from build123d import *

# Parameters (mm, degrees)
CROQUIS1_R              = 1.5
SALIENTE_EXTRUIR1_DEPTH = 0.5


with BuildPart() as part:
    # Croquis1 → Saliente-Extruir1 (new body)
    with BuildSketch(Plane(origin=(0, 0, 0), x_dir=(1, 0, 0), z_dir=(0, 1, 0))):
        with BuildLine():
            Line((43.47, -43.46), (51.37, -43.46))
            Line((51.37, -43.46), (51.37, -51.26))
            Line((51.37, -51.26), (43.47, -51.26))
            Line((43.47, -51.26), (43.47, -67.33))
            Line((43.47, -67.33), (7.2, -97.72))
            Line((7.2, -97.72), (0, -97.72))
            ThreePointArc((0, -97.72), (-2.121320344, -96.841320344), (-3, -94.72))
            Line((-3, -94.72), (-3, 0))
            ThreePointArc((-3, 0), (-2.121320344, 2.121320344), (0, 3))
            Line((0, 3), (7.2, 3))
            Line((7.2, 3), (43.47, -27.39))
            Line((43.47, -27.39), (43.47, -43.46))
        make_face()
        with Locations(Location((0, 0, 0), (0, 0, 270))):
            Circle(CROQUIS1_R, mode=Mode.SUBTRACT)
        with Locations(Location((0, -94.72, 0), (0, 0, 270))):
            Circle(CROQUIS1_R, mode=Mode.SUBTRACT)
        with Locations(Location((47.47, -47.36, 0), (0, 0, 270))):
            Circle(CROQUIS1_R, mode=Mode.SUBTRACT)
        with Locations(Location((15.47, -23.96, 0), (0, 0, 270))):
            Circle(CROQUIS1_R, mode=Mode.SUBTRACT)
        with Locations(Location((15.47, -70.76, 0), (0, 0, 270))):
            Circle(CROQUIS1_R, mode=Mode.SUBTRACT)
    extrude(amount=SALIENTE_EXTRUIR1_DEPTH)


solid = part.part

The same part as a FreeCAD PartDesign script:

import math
import FreeCAD as App
import Part
import Sketcher
from FreeCAD import Vector
Q = App.Units.Quantity

doc = App.newDocument("Part")
body = doc.addObject("PartDesign::Body", "Body")

# Sketch on XZ plane
sketch1 = body.newObject("Sketcher::SketchObject", "Sketch")
sketch1.AttachmentSupport = (doc.getObject("XZ_Plane"), [""])
sketch1.MapMode = "FlatFace"
sketch1.addGeometry(Part.LineSegment(Vector(51.37, 43.46, 0), Vector(43.47, 43.46, 0)), False)
sketch1.addGeometry(Part.LineSegment(Vector(43.47, 43.46, 0), Vector(43.47, 27.39, 0)), False)
sketch1.addGeometry(Part.LineSegment(Vector(43.47, 27.39, 0), Vector(7.2, -3, 0)), False)
sketch1.addGeometry(Part.LineSegment(Vector(7.2, -3, 0), Vector(0, -3, 0)), False)
sketch1.addGeometry(Part.ArcOfCircle(Part.Circle(Vector(0, 0, 0), Vector(0, 0, 1), 3), math.radians(180), math.radians(270)), False)
sketch1.addGeometry(Part.LineSegment(Vector(-3, 0, 0), Vector(-3, 94.72, 0)), False)
sketch1.addGeometry(Part.ArcOfCircle(Part.Circle(Vector(0, 94.72, 0), Vector(0, 0, 1), 3), math.radians(90), math.radians(180)), False)
sketch1.addGeometry(Part.LineSegment(Vector(0, 97.72, 0), Vector(7.2, 97.72, 0)), False)
sketch1.addGeometry(Part.LineSegment(Vector(7.2, 97.72, 0), Vector(43.47, 67.33, 0)), False)
sketch1.addGeometry(Part.LineSegment(Vector(43.47, 67.33, 0), Vector(43.47, 51.26, 0)), False)
sketch1.addGeometry(Part.LineSegment(Vector(43.47, 51.26, 0), Vector(51.37, 51.26, 0)), False)
sketch1.addGeometry(Part.LineSegment(Vector(51.37, 51.26, 0), Vector(51.37, 43.46, 0)), False)
sketch1.addGeometry(Part.Circle(Vector(0, 94.72, 0), Vector(0, 0, 1), 1.5), False)
sketch1.addGeometry(Part.Circle(Vector(15.47, 70.76, 0), Vector(0, 0, 1), 1.5), False)
sketch1.addGeometry(Part.Circle(Vector(47.47, 47.36, 0), Vector(0, 0, 1), 1.5), False)
sketch1.addGeometry(Part.Circle(Vector(15.47, 23.96, 0), Vector(0, 0, 1), 1.5), False)
sketch1.addGeometry(Part.Circle(Vector(0, 0, 0), Vector(0, 0, 1), 1.5), False)
sketch1.addConstraint(Sketcher.Constraint("Coincident", 0, 2, 1, 1))
sketch1.addConstraint(Sketcher.Constraint("Coincident", 1, 2, 2, 1))
sketch1.addConstraint(Sketcher.Constraint("Coincident", 2, 2, 3, 1))
sketch1.addConstraint(Sketcher.Constraint("Tangent", 3, 2, 4, 2))
sketch1.addConstraint(Sketcher.Constraint("Tangent", 4, 1, 5, 1))
sketch1.addConstraint(Sketcher.Constraint("Tangent", 5, 2, 6, 2))
sketch1.addConstraint(Sketcher.Constraint("Tangent", 6, 1, 7, 1))
sketch1.addConstraint(Sketcher.Constraint("Coincident", 7, 2, 8, 1))
sketch1.addConstraint(Sketcher.Constraint("Coincident", 8, 2, 9, 1))
sketch1.addConstraint(Sketcher.Constraint("Coincident", 9, 2, 10, 1))
sketch1.addConstraint(Sketcher.Constraint("Coincident", 10, 2, 11, 1))
sketch1.addConstraint(Sketcher.Constraint("Coincident", 11, 2, 0, 1))
sketch1.addConstraint(Sketcher.Constraint("Horizontal", 0))
sketch1.addConstraint(Sketcher.Constraint("Vertical", 1))
sketch1.addConstraint(Sketcher.Constraint("Horizontal", 3))
sketch1.addConstraint(Sketcher.Constraint("Vertical", 5))
sketch1.addConstraint(Sketcher.Constraint("Horizontal", 7))
sketch1.addConstraint(Sketcher.Constraint("Vertical", 9))
sketch1.addConstraint(Sketcher.Constraint("Horizontal", 10))
sketch1.addConstraint(Sketcher.Constraint("Vertical", 11))
sketch1.addConstraint(Sketcher.Constraint("Coincident", 4, 3, -1, 1))
sketch1.addConstraint(Sketcher.Constraint("Coincident", 16, 3, -1, 1))
sketch1.addConstraint(Sketcher.Constraint("Coincident", 12, 3, 6, 3))
sketch1.addConstraint(Sketcher.Constraint("Equal", 4, 6))
sketch1.addConstraint(Sketcher.Constraint("Equal", 12, 13))
sketch1.addConstraint(Sketcher.Constraint("Equal", 13, 14))
sketch1.addConstraint(Sketcher.Constraint("Equal", 14, 15))
sketch1.addConstraint(Sketcher.Constraint("Equal", 15, 16))
sketch1.addConstraint(Sketcher.Constraint("Vertical", 13, 3, 15, 3))
sketch1.addConstraint(Sketcher.Constraint("Vertical", 2, 2, 7, 2))
sketch1.addConstraint(Sketcher.Constraint("Vertical", 1, 2, 8, 2))
sketch1.addConstraint(Sketcher.Constraint("Equal", 1, 9))
sketch1.addConstraint(Sketcher.Constraint("Equal", 2, 8))
sketch1.addConstraint(Sketcher.Constraint("Diameter", 12, Q("3 mm")))
sketch1.addConstraint(Sketcher.Constraint("Radius", 4, Q("3 mm")))
sketch1.addConstraint(Sketcher.Constraint("DistanceX", 0, 2, 0, 1, Q("7.9 mm")))
sketch1.addConstraint(Sketcher.Constraint("DistanceX", 3, 2, 3, 1, Q("7.2 mm")))
sketch1.addConstraint(Sketcher.Constraint("DistanceY", 11, 2, 11, 1, Q("7.8 mm")))
sketch1.addConstraint(Sketcher.Constraint("DistanceX", 13, 3, 14, 3, Q("32 mm")))
sketch1.addConstraint(Sketcher.Constraint("DistanceX", 0, 2, 14, 3, Q("4 mm")))
sketch1.addConstraint(Sketcher.Constraint("DistanceY", 1, 2, 1, 1, Q("16.07 mm")))
sketch1.addConstraint(Sketcher.Constraint("DistanceY", 5, 1, 5, 2, Q("94.72 mm")))
sketch1.addConstraint(Sketcher.Constraint("DistanceY", 14, 3, 13, 3, Q("23.4 mm")))
sketch1.addConstraint(Sketcher.Constraint("DistanceY", 15, 3, 14, 3, Q("23.4 mm")))
sketch1.addConstraint(Sketcher.Constraint("DistanceY", 0, 2, 14, 3, Q("3.9 mm")))
sketch1.addConstraint(Sketcher.Constraint("DistanceX", -1, 1, 13, 3, Q("15.47 mm")))
pad1 = body.newObject("PartDesign::Pad", "Pad")
pad1.Profile = sketch1
pad1.Length = 0.5
pad1.Reversed = True

doc.recompute()
